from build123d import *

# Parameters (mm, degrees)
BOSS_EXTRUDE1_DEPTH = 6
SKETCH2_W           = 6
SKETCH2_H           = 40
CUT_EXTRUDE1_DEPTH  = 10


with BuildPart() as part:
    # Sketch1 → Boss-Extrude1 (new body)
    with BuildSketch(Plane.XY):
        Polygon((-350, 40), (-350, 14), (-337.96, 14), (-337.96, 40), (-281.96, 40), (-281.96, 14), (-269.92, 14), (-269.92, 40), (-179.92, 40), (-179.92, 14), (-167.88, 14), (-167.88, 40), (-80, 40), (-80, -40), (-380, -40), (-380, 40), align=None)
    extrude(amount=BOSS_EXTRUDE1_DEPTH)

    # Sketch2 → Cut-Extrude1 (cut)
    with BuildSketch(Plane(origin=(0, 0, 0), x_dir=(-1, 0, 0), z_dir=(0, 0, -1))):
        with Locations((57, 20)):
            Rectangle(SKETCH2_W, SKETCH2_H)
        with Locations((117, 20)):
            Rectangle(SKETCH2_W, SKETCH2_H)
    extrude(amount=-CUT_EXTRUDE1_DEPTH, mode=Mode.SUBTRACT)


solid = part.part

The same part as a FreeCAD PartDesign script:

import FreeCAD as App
import Part
import Sketcher
Q = App.Units.Quantity

doc = App.newDocument("Part")
body = doc.addObject("PartDesign::Body", "Body")

# Sketch on XY plane
sketch1 = body.newObject("Sketcher::SketchObject", "Sketch")
sketch1.AttachmentSupport = (doc.getObject("XY_Plane"), [""])
sketch1.MapMode = "FlatFace"
sketch1.addGeometry(Part.LineSegment(App.Vector(-350, 14, 0), App.Vector(-350, 40, 0)), False)
sketch1.addGeometry(Part.LineSegment(App.Vector(-350, 40, 0), App.Vector(-380, 40, 0)), False)
sketch1.addGeometry(Part.LineSegment(App.Vector(-380, 40, 0), App.Vector(-380, -40, 0)), False)
sketch1.addGeometry(Part.LineSegment(App.Vector(-380, -40, 0), App.Vector(-80, -40, 0)), False)
sketch1.addGeometry(Part.LineSegment(App.Vector(-80, -40, 0), App.Vector(-80, 40, 0)), False)
sketch1.addGeometry(Part.LineSegment(App.Vector(-80, 40, 0), App.Vector(-168, 40, 0)), False)
sketch1.addGeometry(Part.LineSegment(App.Vector(-168, 40, 0), App.Vector(-168, 14, 0)), False)
sketch1.addGeometry(Part.LineSegment(App.Vector(-168, 14, 0), App.Vector(-180, 14, 0)), False)
sketch1.addGeometry(Part.LineSegment(App.Vector(-180, 14, 0), App.Vector(-180, 40, 0)), False)
sketch1.addGeometry(Part.LineSegment(App.Vector(-180, 40, 0), App.Vector(-270, 40, 0)), False)
sketch1.addGeometry(Part.LineSegment(App.Vector(-270, 40, 0), App.Vector(-270, 14, 0)), False)
sketch1.addGeometry(Part.LineSegment(App.Vector(-270, 14, 0), App.Vector(-282, 14, 0)), False)
sketch1.addGeometry(Part.LineSegment(App.Vector(-282, 14, 0), App.Vector(-282, 40, 0)), False)
sketch1.addGeometry(Part.LineSegment(App.Vector(-282, 40, 0), App.Vector(-338, 40, 0)), False)
sketch1.addGeometry(Part.LineSegment(App.Vector(-338, 40, 0), App.Vector(-338, 14, 0)), False)
sketch1.addGeometry(Part.LineSegment(App.Vector(-338, 14, 0), App.Vector(-350, 14, 0)), False)
sketch1.addConstraint(Sketcher.Constraint("Coincident", 0, 2, 1, 1))
sketch1.addConstraint(Sketcher.Constraint("Coincident", 1, 2, 2, 1))
sketch1.addConstraint(Sketcher.Constraint("Coincident", 2, 2, 3, 1))
sketch1.addConstraint(Sketcher.Constraint("Coincident", 3, 2, 4, 1))
sketch1.addConstraint(Sketcher.Constraint("Coincident", 4, 2, 5, 1))
sketch1.addConstraint(Sketcher.Constraint("Coincident", 5, 2, 6, 1))
sketch1.addConstraint(Sketcher.Constraint("Coincident", 6, 2, 7, 1))
sketch1.addConstraint(Sketcher.Constraint("Coincident", 7, 2, 8, 1))
sketch1.addConstraint(Sketcher.Constraint("Coincident", 8, 2, 9, 1))
sketch1.addConstraint(Sketcher.Constraint("Coincident", 9, 2, 10, 1))
sketch1.addConstraint(Sketcher.Constraint("Coincident", 10, 2, 11, 1))
sketch1.addConstraint(Sketcher.Constraint("Coincident", 11, 2, 12, 1))
sketch1.addConstraint(Sketcher.Constraint("Coincident", 12, 2, 13, 1))
sketch1.addConstraint(Sketcher.Constraint("Coincident", 13, 2, 14, 1))
sketch1.addConstraint(Sketcher.Constraint("Coincident", 14, 2, 15, 1))
sketch1.addConstraint(Sketcher.Constraint("Coincident", 15, 2, 0, 1))
sketch1.addConstraint(Sketcher.Constraint("Vertical", 0))
sketch1.addConstraint(Sketcher.Constraint("Horizontal", 1))
sketch1.addConstraint(Sketcher.Constraint("Vertical", 2))
sketch1.addConstraint(Sketcher.Constraint("Horizontal", 3))
sketch1.addConstraint(Sketcher.Constraint("Vertical", 4))
sketch1.addConstraint(Sketcher.Constraint("Horizontal", 5))
sketch1.addConstraint(Sketcher.Constraint("Vertical", 6))
sketch1.addConstraint(Sketcher.Constraint("Horizontal", 7))
sketch1.addConstraint(Sketcher.Constraint("Vertical", 8))
sketch1.addConstraint(Sketcher.Constraint("Horizontal", 9))
sketch1.addConstraint(Sketcher.Constraint("Vertical", 10))
sketch1.addConstraint(Sketcher.Constraint("Horizontal", 11))
sketch1.addConstraint(Sketcher.Constraint("Vertical", 12))
sketch1.addConstraint(Sketcher.Constraint("Horizontal", 13))
sketch1.addConstraint(Sketcher.Constraint("Vertical", 14))
sketch1.addConstraint(Sketcher.Constraint("Horizontal", 15))
sketch1.addConstraint(Sketcher.Constraint("Horizontal", 1, 2, 4, 2))
sketch1.addConstraint(Sketcher.Constraint("Horizontal", 5, 2, 8, 2))
sketch1.addConstraint(Sketcher.Constraint("Horizontal", 7, 2, 10, 2))
sketch1.addConstraint(Sketcher.Constraint("Horizontal", 9, 2, 12, 2))
sketch1.addConstraint(Sketcher.Constraint("Horizontal", 11, 2, 14, 2))
sketch1.addConstraint(Sketcher.Constraint("Equal", 7, 11))
sketch1.addConstraint(Sketcher.Constraint("Equal", 11, 15))
sketch1.addConstraint(Sketcher.Constraint("DistanceX", 1, 2, 1, 1, Q("30 mm")))
sketch1.addConstraint(Sketcher.Constraint("DistanceX", 3, 1, 3, 2, Q("300 mm")))
sketch1.addConstraint(Sketcher.Constraint("DistanceX", 9, 2, 9, 1, Q("90 mm")))
sketch1.addConstraint(Sketcher.Constraint("DistanceX", 13, 2, 13, 1, Q("56 mm")))
sketch1.addConstraint(Sketcher.Constraint("DistanceY", 0, 1, 0, 2, Q("26 mm")))
sketch1.addConstraint(Sketcher.Constraint("DistanceY", 2, 2, 2, 1, Q("80 mm")))
sketch1.addConstraint(Sketcher.Constraint("DistanceX", 0, 2, -1, 1, Q("350 mm")))
sketch1.addConstraint(Sketcher.Constraint("DistanceY", -1, 1, 0, 2, Q("40 mm")))
sketch1.addConstraint(Sketcher.Constraint("DistanceX", 5, 2, 5, 1, Q("87.88 mm")))
pad1 = body.newObject("PartDesign::Pad", "Pad")
pad1.Profile = sketch1
pad1.Length = 6

# Sketch on XY plane
sketch2 = body.newObject("Sketcher::SketchObject", "Sketch001")
sketch2.AttachmentSupport = (doc.getObject("XY_Plane"), [""])
sketch2.MapMode = "FlatFace"
sketch2.addGeometry(Part.LineSegment(App.Vector(-54, 40, 0), App.Vector(-54, 0, 0)), False)
sketch2.addGeometry(Part.LineSegment(App.Vector(-54, 0, 0), App.Vector(-60, 0, 0)), False)
sketch2.addGeometry(Part.LineSegment(App.Vector(-60, 0, 0), App.Vector(-60, 40, 0)), False)
sketch2.addGeometry(Part.LineSegment(App.Vector(-60, 40, 0), App.Vector(-54, 40, 0)), False)
sketch2.addGeometry(Part.LineSegment(App.Vector(-114, 40, 0), App.Vector(-114, 0, 0)), False)
sketch2.addGeometry(Part.LineSegment(App.Vector(-114, 0, 0), App.Vector(-120, 0, 0)), False)
sketch2.addGeometry(Part.LineSegment(App.Vector(-120, 0, 0), App.Vector(-120, 40, 0)), False)
sketch2.addGeometry(Part.LineSegment(App.Vector(-120, 40, 0), App.Vector(-114, 40, 0)), False)
sketch2.addConstraint(Sketcher.Constraint("Coincident", 0, 2, 1, 1))
sketch2.addConstraint(Sketcher.Constraint("Coincident", 1, 2, 2, 1))
sketch2.addConstraint(Sketcher.Constraint("Coincident", 2, 2, 3, 1))
sketch2.addConstraint(Sketcher.Constraint("Coincident", 3, 2, 0, 1))
sketch2.addConstraint(Sketcher.Constraint("Coincident", 4, 2, 5, 1))
sketch2.addConstraint(Sketcher.Constraint("Coincident", 5, 2, 6, 1))
sketch2.addConstraint(Sketcher.Constraint("Coincident", 6, 2, 7, 1))
sketch2.addConstraint(Sketcher.Constraint("Coincident", 7, 2, 4, 1))
sketch2.addConstraint(Sketcher.Constraint("Vertical", 0))
sketch2.addConstraint(Sketcher.Constraint("Horizontal", 1))
sketch2.addConstraint(Sketcher.Constraint("Vertical", 2))
sketch2.addConstraint(Sketcher.Constraint("Horizontal", 3))
sketch2.addConstraint(Sketcher.Constraint("Vertical", 4))
sketch2.addConstraint(Sketcher.Constraint("Horizontal", 5))
sketch2.addConstraint(Sketcher.Constraint("Vertical", 6))
sketch2.addConstraint(Sketcher.Constraint("Horizontal", 7))
sketch2.addConstraint(Sketcher.Constraint("PointOnObject", 0, 2, -1))
sketch2.addConstraint(Sketcher.Constraint("PointOnObject", 4, 2, -1))
sketch2.addConstraint(Sketcher.Constraint("Horizontal", 3, 2, 6, 2))
sketch2.addConstraint(Sketcher.Constraint("Equal", 3, 5))
sketch2.addConstraint(Sketcher.Constraint("DistanceX", 1, 2, 1, 1, Q("6 mm")))
sketch2.addConstraint(Sketcher.Constraint("DistanceY", 0, 2, 0, 1, Q("40 mm")))
sketch2.addConstraint(Sketcher.Constraint("DistanceX", 0, 2, -1, 1, Q("54 mm")))
sketch2.addConstraint(Sketcher.Constraint("DistanceX", 4, 2, -1, 1, Q("114 mm")))
pocket1 = body.newObject("PartDesign::Pocket", "Pocket")
pocket1.Profile = sketch2
pocket1.Length = 10
pocket1.Reversed = True

doc.recompute()
